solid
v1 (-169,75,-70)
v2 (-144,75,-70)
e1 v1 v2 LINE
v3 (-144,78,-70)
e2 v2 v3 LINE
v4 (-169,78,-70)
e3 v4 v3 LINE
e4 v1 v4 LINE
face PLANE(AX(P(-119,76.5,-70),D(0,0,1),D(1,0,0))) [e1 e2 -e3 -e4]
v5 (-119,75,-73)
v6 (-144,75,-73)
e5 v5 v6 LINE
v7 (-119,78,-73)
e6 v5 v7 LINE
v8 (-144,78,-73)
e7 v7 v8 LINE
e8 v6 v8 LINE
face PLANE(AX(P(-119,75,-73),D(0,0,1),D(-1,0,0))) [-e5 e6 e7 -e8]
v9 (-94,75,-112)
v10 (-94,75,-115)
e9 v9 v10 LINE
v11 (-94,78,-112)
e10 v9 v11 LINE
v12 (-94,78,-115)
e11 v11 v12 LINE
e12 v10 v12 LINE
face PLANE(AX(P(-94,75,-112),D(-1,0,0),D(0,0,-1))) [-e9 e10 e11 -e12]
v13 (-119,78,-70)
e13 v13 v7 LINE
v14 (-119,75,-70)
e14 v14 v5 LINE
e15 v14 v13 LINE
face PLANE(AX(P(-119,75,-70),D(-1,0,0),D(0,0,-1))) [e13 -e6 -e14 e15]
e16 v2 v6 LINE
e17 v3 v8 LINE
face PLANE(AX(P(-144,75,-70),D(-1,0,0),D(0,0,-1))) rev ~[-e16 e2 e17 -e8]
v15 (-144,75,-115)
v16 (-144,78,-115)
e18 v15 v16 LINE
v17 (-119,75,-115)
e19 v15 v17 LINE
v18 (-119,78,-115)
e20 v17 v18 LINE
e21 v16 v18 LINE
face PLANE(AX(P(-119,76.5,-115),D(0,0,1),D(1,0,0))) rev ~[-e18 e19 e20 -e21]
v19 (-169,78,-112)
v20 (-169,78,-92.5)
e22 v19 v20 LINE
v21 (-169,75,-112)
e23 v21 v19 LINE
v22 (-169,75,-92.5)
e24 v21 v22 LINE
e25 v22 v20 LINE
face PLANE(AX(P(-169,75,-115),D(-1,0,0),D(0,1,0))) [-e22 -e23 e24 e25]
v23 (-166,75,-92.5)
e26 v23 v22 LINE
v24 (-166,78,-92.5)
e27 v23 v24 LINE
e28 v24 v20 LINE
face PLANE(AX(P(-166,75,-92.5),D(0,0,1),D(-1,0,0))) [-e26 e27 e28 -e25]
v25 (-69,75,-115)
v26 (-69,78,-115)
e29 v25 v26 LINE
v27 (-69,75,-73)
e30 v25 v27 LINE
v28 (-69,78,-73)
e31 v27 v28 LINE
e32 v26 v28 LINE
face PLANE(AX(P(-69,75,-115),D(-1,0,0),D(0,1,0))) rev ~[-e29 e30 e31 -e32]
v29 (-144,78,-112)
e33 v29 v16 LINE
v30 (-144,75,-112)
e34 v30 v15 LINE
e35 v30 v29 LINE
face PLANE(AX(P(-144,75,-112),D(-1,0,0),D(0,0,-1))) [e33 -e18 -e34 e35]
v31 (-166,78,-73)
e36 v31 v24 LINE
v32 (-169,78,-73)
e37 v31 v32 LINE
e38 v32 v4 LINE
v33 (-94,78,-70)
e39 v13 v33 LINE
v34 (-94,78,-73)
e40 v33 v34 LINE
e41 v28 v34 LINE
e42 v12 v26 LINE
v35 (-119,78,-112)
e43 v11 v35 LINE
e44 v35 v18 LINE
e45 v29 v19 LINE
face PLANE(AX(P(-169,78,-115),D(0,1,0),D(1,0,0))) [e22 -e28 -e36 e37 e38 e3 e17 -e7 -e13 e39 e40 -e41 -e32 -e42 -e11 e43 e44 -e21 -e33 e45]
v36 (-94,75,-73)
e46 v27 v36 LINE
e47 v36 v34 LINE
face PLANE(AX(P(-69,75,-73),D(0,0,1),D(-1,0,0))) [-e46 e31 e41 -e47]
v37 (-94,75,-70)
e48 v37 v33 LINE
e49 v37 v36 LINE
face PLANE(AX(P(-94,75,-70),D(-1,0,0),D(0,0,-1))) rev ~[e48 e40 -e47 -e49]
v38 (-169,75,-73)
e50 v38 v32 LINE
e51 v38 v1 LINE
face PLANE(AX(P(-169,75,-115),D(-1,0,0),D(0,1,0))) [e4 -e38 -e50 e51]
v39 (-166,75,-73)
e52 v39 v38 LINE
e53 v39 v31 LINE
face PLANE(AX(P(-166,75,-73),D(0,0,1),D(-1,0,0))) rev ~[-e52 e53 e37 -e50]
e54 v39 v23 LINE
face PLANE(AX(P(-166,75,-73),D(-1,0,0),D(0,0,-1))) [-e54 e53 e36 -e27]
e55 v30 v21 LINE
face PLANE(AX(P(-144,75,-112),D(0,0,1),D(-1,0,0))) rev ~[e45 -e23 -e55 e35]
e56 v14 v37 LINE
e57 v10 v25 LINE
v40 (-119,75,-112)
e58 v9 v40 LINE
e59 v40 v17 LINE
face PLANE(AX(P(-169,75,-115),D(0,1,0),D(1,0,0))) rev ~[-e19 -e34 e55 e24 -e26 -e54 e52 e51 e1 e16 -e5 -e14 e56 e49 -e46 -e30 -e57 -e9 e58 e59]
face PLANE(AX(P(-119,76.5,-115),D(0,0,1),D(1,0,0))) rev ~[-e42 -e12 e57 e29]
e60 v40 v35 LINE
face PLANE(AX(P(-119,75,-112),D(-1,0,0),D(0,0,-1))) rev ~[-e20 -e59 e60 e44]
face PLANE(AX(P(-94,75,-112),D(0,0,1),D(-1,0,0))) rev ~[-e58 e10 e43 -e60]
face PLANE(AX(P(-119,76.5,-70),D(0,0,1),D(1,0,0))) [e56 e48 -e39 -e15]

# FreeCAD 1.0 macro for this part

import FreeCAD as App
import Part
import Sketcher
from FreeCAD import Vector


def add_polygon(sketch, points):
    """Adds a closed chain of lines whose ends are joined by coincident constraints."""
    first, n = sketch.GeometryCount, len(points)
    for a, b in zip(points, points[1:] + points[:1]):
        sketch.addGeometry(Part.LineSegment(App.Vector(*a, 0), App.Vector(*b, 0)), False)
    for i in range(n):
        sketch.addConstraint(Sketcher.Constraint("Coincident", first + i, 2, first + (i + 1) % n, 1))

doc = App.newDocument("Part")
params = doc.addObject("Spreadsheet::Sheet", "Params")
for row, (alias, value) in enumerate([
    ("sketch1_width", "25 mm"),
    ("sketch1_height", "3 mm"),
    ("pad1_length", "3 mm"),
    ("sketch2_width", "25 mm"),
    ("sketch2_height", "3 mm"),
    ("pad2_length", "3 mm"),
    ("sketch3_width", "25 mm"),
    ("sketch3_height", "3 mm"),
    ("pad3_length", "3 mm"),
    ("sketch4_width", "25 mm"),
    ("sketch4_height", "3 mm"),
    ("pad4_length", "3 mm"),
    ("sketch5_width", "3 mm"),
    ("sketch5_height", "19.5 mm"),
    ("pad5_length", "3 mm"),
    ("sketch6_width", "100 mm"),
    ("sketch6_height", "3 mm"),
    ("pad6_length", "45 mm"),
], start=1):
    params.set(f"A{row}", alias)
    params.set(f"B{row}", "=" + value)
    params.setAlias(f"B{row}", alias)

body = doc.addObject("PartDesign::Body", "Body")

# Sketch on XY plane
sketch1 = body.newObject("Sketcher::SketchObject", "Sketch")
sketch1.AttachmentSupport = (doc.getObject("XY_Plane"), [""])
sketch1.MapMode = "FlatFace"
add_polygon(sketch1, [(0, 3), (0, 0), (25, 0), (25, 3)])  # lines 0-3
sketch1.addConstraint([
    Sketcher.Constraint("Vertical", 0),
    Sketcher.Constraint("Horizontal", 1),
    Sketcher.Constraint("Vertical", 2),
    Sketcher.Constraint("Horizontal", 3),
    Sketcher.Constraint("Coincident", 0, 2, -1, 1),
    Sketcher.Constraint("DistanceX", 1, 1, 1, 2, 25.0),
    Sketcher.Constraint("DistanceY", 0, 2, 0, 1, 3.0),
])
sketch1.setExpression("Constraints[9]", "Params.sketch1_width")
sketch1.setExpression("Constraints[10]", "Params.sketch1_height")
pad1 = body.newObject("PartDesign::Pad", "Pad")
pad1.Profile = sketch1
pad1.setExpression("Length", "Params.pad1_length")
pad1.Reversed = True
body2 = doc.addObject("PartDesign::Body", "Body001")
doc.recompute()

body.Placement = App.Placement(Vector(0, 0, 0), App.Rotation(Vector(1, 0, 0), 270))
boolean = body2.newObject("PartDesign::Boolean", "Boolean")
boolean.Type = "Fuse"
boolean.addObjects([body])
body3 = doc.addObject("PartDesign::Body", "Body002")
doc.recompute()

body2.Placement = App.Placement(Vector(114, -77, -70), App.Rotation(Vector(0, 0, 1), 180))
boolean2 = body3.newObject("PartDesign::Boolean", "Boolean001")
boolean2.Type = "Fuse"
boolean2.addObjects([body2])
body4 = doc.addObject("PartDesign::Body", "Body003")
doc.recompute()

body3.Placement = App.Placement(Vector(-183, 0, 0), App.Rotation(Vector(0, 0, 1), 0))
boolean3 = body4.newObject("PartDesign::Boolean", "Boolean002")
boolean3.Type = "Fuse"
boolean3.addObjects([body3])
body5 = doc.addObject("PartDesign::Body", "Body004")

# Sketch on XY plane
sketch2 = body5.newObject("Sketcher::SketchObject", "Sketch001")
sketch2.AttachmentSupport = (doc.getObject("XY_Plane004"), [""])
sketch2.MapMode = "FlatFace"
add_polygon(sketch2, [(0, 3), (0, 0), (25, 0), (25, 3)])  # lines 0-3
sketch2.addConstraint([
    Sketcher.Constraint("Vertical", 0),
    Sketcher.Constraint("Horizontal", 1),
    Sketcher.Constraint("Vertical", 2),
    Sketcher.Constraint("Horizontal", 3),
    Sketcher.Constraint("Coincident", 0, 2, -1, 1),
    Sketcher.Constraint("DistanceX", 1, 1, 1, 2, 25.0),
    Sketcher.Constraint("DistanceY", 0, 2, 0, 1, 3.0),
])
sketch2.setExpression("Constraints[9]", "Params.sketch2_width")
sketch2.setExpression("Constraints[10]", "Params.sketch2_height")
pad2 = body5.newObject("PartDesign::Pad", "Pad001")
pad2.Profile = sketch2
pad2.setExpression("Length", "Params.pad2_length")
pad2.Reversed = True
body6 = doc.addObject("PartDesign::Body", "Body005")
doc.recompute()

body5.Placement = App.Placement(Vector(0, 0, 0), App.Rotation(Vector(1, 0, 0), 270))
boolean4 = body6.newObject("PartDesign::Boolean", "Boolean003")
boolean4.Type = "Fuse"
boolean4.addObjects([body5])
body7 = doc.addObject("PartDesign::Body", "Body006")
doc.recompute()

body6.Placement = App.Placement(Vector(89, -77, -70), App.Rotation(Vector(0, 0, 1), 180))
boolean5 = body7.newObject("PartDesign::Boolean", "Boolean004")
boolean5.Type = "Fuse"
boolean5.addObjects([body6])
body8 = doc.addObject("PartDesign::Body", "Body007")
doc.recompute()

body7.Placement = App.Placement(Vector(-208, 0, 0), App.Rotation(Vector(0, 0, 1), 0))
boolean6 = body8.newObject("PartDesign::Boolean", "Boolean005")
boolean6.Type = "Fuse"
boolean6.addObjects([body7])
body9 = doc.addObject("PartDesign::Body", "Body008")

# Sketch on XY plane
sketch3 = body9.newObject("Sketcher::SketchObject", "Sketch002")
sketch3.AttachmentSupport = (doc.getObject("XY_Plane008"), [""])
sketch3.MapMode = "FlatFace"
add_polygon(sketch3, [(0, 3), (0, 0), (25, 0), (25, 3)])  # lines 0-3
sketch3.addConstraint([
    Sketcher.Constraint("Vertical", 0),
    Sketcher.Constraint("Horizontal", 1),
    Sketcher.Constraint("Vertical", 2),
    Sketcher.Constraint("Horizontal", 3),
    Sketcher.Constraint("Coincident", 0, 2, -1, 1),
    Sketcher.Constraint("DistanceX", 1, 1, 1, 2, 25.0),
    Sketcher.Constraint("DistanceY", 0, 2, 0, 1, 3.0),
])
sketch3.setExpression("Constraints[9]", "Params.sketch3_width")
sketch3.setExpression("Constraints[10]", "Params.sketch3_height")
pad3 = body9.newObject("PartDesign::Pad", "Pad002")
pad3.Profile = sketch3
pad3.setExpression("Length", "Params.pad3_length")
pad3.Reversed = True
body10 = doc.addObject("PartDesign::Body", "Body009")
doc.recompute()

body9.Placement = App.Placement(Vector(0, 0, 0), App.Rotation(Vector(1, 0, 0), 270))
boolean7 = body10.newObject("PartDesign::Boolean", "Boolean006")
boolean7.Type = "Fuse"
boolean7.addObjects([body9])
body11 = doc.addObject("PartDesign::Body", "Body010")
doc.recompute()

body10.Placement = App.Placement(Vector(39, -77, -70), App.Rotation(Vector(0, 0, 1), 180))
boolean8 = body11.newObject("PartDesign::Boolean", "Boolean007")
boolean8.Type = "Fuse"
boolean8.addObjects([body10])
body12 = doc.addObject("PartDesign::Body", "Body011")
doc.recompute()

body11.Placement = App.Placement(Vector(-183, 0, -42), App.Rotation(Vector(0, 0, 1), 0))
boolean9 = body12.newObject("PartDesign::Boolean", "Boolean008")
boolean9.Type = "Fuse"
boolean9.addObjects([body11])
body13 = doc.addObject("PartDesign::Body", "Body012")

# Sketch on XY plane
sketch4 = body13.newObject("Sketcher::SketchObject", "Sketch003")
sketch4.AttachmentSupport = (doc.getObject("XY_Plane012"), [""])
sketch4.MapMode = "FlatFace"
add_polygon(sketch4, [(0, 3), (0, 0), (25, 0), (25, 3)])  # lines 0-3
sketch4.addConstraint([
    Sketcher.Constraint("Vertical", 0),
    Sketcher.Constraint("Horizontal", 1),
    Sketcher.Constraint("Vertical", 2),
    Sketcher.Constraint("Horizontal", 3),
    Sketcher.Constraint("Coincident", 0, 2, -1, 1),
    Sketcher.Constraint("DistanceX", 1, 1, 1, 2, 25.0),
    Sketcher.Constraint("DistanceY", 0, 2, 0, 1, 3.0),
])
sketch4.setExpression("Constraints[9]", "Params.sketch4_width")
sketch4.setExpression("Constraints[10]", "Params.sketch4_height")
pad4 = body13.newObject("PartDesign::Pad", "Pad003")
pad4.Profile = sketch4
pad4.setExpression("Length", "Params.pad4_length")
pad4.Reversed = True
body14 = doc.addObject("PartDesign::Body", "Body013")
doc.recompute()

body13.Placement = App.Placement(Vector(0, 0, 0), App.Rotation(Vector(1, 0, 0), 270))
boolean10 = body14.newObject("PartDesign::Boolean", "Boolean009")
boolean10.Type = "Fuse"
boolean10.addObjects([body13])
body15 = doc.addObject("PartDesign::Body", "Body014")
doc.recompute()

body14.Placement = App.Placement(Vector(114, -77, -70), App.Rotation(Vector(0, 0, 1), 180))
boolean11 = body15.newObject("PartDesign::Boolean", "Boolean010")
boolean11.Type = "Fuse"
boolean11.addObjects([body14])
body16 = doc.addObject("PartDesign::Body", "Body015")
doc.recompute()

body15.Placement = App.Placement(Vector(-208, 0, -42), App.Rotation(Vector(0, 0, 1), 0))
boolean12 = body16.newObject("PartDesign::Boolean", "Boolean011")
boolean12.Type = "Fuse"
boolean12.addObjects([body15])
body17 = doc.addObject("PartDesign::Body", "Body016")

# Sketch on XY plane
sketch5 = body17.newObject("Sketcher::SketchObject", "Sketch004")
sketch5.AttachmentSupport = (doc.getObject("XY_Plane016"), [""])
sketch5.MapMode = "FlatFace"
add_polygon(sketch5, [(0, 19.5), (0, 0), (3, 0), (3, 19.5)])  # lines 0-3
sketch5.addConstraint([
    Sketcher.Constraint("Vertical", 0),
    Sketcher.Constraint("Horizontal", 1),
    Sketcher.Constraint("Vertical", 2),
    Sketcher.Constraint("Horizontal", 3),
    Sketcher.Constraint("Coincident", 0, 2, -1, 1),
    Sketcher.Constraint("DistanceX", 1, 1, 1, 2, 3.0),
    Sketcher.Constraint("DistanceY", 0, 2, 0, 1, 19.5),
])
sketch5.setExpression("Constraints[9]", "Params.sketch5_width")
sketch5.setExpression("Constraints[10]", "Params.sketch5_height")
pad5 = body17.newObject("PartDesign::Pad", "Pad004")
pad5.Profile = sketch5
pad5.setExpression("Length", "Params.pad5_length")
pad5.Reversed = True
body18 = doc.addObject("PartDesign::Body", "Body017")
doc.recompute()

body17.Placement = App.Placement(Vector(0, 0, 0), App.Rotation(Vector(1, 0, 0), 270))
boolean13 = body18.newObject("PartDesign::Boolean", "Boolean012")
boolean13.Type = "Fuse"
boolean13.addObjects([body17])
body19 = doc.addObject("PartDesign::Body", "Body018")
doc.recompute()

body18.Placement = App.Placement(Vector(114, -77, -92.5), App.Rotation(Vector(0, 0, 1), 180))
boolean14 = body19.newObject("PartDesign::Boolean", "Boolean013")
boolean14.Type = "Fuse"
boolean14.addObjects([body18])
body20 = doc.addObject("PartDesign::Body", "Body019")
body20.AllowCompound = True
doc.recompute()

body19.Placement = App.Placement(Vector(-280, 0, 19.5), App.Rotation(Vector(0, 0, 1), 0))
boolean15 = body20.newObject("PartDesign::Boolean", "Boolean014")
boolean15.Type = "Fuse"
boolean15.addObjects([body19])
doc.recompute()

boolean16 = body20.newObject("PartDesign::Boolean", "Boolean015")
boolean16.Type = "Fuse"
boolean16.addObjects([body4])
doc.recompute()

boolean17 = body20.newObject("PartDesign::Boolean", "Boolean016")
boolean17.Type = "Fuse"
boolean17.addObjects([body8])
doc.recompute()

boolean18 = body20.newObject("PartDesign::Boolean", "Boolean017")
boolean18.Type = "Fuse"
boolean18.addObjects([body12])
doc.recompute()

boolean19 = body20.newObject("PartDesign::Boolean", "Boolean018")
boolean19.Type = "Fuse"
boolean19.addObjects([body16])
body21 = doc.addObject("PartDesign::Body", "Body020")
body21.AllowCompound = True
doc.recompute()

body20.Placement = App.Placement(Vector(0, 152, 0), App.Rotation(Vector(0, 0, 1), 0))
boolean20 = body21.newObject("PartDesign::Boolean", "Boolean019")
boolean20.Type = "Fuse"
boolean20.addObjects([body20])
body22 = doc.addObject("PartDesign::Body", "Body021")

# Sketch on XY plane
sketch6 = body22.newObject("Sketcher::SketchObject", "Sketch005")
sketch6.AttachmentSupport = (doc.getObject("XY_Plane021"), [""])
sketch6.MapMode = "FlatFace"
sketch6.AttachmentOffset = App.Placement(Vector(0, 0, -115), App.Rotation())
add_polygon(sketch6, [(-169, 78), (-169, 75), (-69, 75), (-69, 78)])  # lines 0-3
sketch6.addConstraint([
    Sketcher.Constraint("Vertical", 0),
    Sketcher.Constraint("Horizontal", 1),
    Sketcher.Constraint("Vertical", 2),
    Sketcher.Constraint("Horizontal", 3),
    Sketcher.Constraint("DistanceX", 1, 1, 1, 2, 100.0),
    Sketcher.Constraint("DistanceY", 0, 2, 0, 1, 3.0),
    Sketcher.Constraint("DistanceX", 0, 2, -1, 1, 169.0),
    Sketcher.Constraint("DistanceY", -1, 1, 0, 2, 75.0),
])
sketch6.setExpression("Constraints[8]", "Params.sketch6_width")
sketch6.setExpression("Constraints[9]", "Params.sketch6_height")
pad6 = body22.newObject("PartDesign::Pad", "Pad005")
pad6.Profile = sketch6
pad6.setExpression("Length", "Params.pad6_length")
doc.recompute()

boolean21 = body22.newObject("PartDesign::Boolean", "Boolean020")
boolean21.Type = "Cut"
boolean21.addObjects([body21])

doc.recompute()
